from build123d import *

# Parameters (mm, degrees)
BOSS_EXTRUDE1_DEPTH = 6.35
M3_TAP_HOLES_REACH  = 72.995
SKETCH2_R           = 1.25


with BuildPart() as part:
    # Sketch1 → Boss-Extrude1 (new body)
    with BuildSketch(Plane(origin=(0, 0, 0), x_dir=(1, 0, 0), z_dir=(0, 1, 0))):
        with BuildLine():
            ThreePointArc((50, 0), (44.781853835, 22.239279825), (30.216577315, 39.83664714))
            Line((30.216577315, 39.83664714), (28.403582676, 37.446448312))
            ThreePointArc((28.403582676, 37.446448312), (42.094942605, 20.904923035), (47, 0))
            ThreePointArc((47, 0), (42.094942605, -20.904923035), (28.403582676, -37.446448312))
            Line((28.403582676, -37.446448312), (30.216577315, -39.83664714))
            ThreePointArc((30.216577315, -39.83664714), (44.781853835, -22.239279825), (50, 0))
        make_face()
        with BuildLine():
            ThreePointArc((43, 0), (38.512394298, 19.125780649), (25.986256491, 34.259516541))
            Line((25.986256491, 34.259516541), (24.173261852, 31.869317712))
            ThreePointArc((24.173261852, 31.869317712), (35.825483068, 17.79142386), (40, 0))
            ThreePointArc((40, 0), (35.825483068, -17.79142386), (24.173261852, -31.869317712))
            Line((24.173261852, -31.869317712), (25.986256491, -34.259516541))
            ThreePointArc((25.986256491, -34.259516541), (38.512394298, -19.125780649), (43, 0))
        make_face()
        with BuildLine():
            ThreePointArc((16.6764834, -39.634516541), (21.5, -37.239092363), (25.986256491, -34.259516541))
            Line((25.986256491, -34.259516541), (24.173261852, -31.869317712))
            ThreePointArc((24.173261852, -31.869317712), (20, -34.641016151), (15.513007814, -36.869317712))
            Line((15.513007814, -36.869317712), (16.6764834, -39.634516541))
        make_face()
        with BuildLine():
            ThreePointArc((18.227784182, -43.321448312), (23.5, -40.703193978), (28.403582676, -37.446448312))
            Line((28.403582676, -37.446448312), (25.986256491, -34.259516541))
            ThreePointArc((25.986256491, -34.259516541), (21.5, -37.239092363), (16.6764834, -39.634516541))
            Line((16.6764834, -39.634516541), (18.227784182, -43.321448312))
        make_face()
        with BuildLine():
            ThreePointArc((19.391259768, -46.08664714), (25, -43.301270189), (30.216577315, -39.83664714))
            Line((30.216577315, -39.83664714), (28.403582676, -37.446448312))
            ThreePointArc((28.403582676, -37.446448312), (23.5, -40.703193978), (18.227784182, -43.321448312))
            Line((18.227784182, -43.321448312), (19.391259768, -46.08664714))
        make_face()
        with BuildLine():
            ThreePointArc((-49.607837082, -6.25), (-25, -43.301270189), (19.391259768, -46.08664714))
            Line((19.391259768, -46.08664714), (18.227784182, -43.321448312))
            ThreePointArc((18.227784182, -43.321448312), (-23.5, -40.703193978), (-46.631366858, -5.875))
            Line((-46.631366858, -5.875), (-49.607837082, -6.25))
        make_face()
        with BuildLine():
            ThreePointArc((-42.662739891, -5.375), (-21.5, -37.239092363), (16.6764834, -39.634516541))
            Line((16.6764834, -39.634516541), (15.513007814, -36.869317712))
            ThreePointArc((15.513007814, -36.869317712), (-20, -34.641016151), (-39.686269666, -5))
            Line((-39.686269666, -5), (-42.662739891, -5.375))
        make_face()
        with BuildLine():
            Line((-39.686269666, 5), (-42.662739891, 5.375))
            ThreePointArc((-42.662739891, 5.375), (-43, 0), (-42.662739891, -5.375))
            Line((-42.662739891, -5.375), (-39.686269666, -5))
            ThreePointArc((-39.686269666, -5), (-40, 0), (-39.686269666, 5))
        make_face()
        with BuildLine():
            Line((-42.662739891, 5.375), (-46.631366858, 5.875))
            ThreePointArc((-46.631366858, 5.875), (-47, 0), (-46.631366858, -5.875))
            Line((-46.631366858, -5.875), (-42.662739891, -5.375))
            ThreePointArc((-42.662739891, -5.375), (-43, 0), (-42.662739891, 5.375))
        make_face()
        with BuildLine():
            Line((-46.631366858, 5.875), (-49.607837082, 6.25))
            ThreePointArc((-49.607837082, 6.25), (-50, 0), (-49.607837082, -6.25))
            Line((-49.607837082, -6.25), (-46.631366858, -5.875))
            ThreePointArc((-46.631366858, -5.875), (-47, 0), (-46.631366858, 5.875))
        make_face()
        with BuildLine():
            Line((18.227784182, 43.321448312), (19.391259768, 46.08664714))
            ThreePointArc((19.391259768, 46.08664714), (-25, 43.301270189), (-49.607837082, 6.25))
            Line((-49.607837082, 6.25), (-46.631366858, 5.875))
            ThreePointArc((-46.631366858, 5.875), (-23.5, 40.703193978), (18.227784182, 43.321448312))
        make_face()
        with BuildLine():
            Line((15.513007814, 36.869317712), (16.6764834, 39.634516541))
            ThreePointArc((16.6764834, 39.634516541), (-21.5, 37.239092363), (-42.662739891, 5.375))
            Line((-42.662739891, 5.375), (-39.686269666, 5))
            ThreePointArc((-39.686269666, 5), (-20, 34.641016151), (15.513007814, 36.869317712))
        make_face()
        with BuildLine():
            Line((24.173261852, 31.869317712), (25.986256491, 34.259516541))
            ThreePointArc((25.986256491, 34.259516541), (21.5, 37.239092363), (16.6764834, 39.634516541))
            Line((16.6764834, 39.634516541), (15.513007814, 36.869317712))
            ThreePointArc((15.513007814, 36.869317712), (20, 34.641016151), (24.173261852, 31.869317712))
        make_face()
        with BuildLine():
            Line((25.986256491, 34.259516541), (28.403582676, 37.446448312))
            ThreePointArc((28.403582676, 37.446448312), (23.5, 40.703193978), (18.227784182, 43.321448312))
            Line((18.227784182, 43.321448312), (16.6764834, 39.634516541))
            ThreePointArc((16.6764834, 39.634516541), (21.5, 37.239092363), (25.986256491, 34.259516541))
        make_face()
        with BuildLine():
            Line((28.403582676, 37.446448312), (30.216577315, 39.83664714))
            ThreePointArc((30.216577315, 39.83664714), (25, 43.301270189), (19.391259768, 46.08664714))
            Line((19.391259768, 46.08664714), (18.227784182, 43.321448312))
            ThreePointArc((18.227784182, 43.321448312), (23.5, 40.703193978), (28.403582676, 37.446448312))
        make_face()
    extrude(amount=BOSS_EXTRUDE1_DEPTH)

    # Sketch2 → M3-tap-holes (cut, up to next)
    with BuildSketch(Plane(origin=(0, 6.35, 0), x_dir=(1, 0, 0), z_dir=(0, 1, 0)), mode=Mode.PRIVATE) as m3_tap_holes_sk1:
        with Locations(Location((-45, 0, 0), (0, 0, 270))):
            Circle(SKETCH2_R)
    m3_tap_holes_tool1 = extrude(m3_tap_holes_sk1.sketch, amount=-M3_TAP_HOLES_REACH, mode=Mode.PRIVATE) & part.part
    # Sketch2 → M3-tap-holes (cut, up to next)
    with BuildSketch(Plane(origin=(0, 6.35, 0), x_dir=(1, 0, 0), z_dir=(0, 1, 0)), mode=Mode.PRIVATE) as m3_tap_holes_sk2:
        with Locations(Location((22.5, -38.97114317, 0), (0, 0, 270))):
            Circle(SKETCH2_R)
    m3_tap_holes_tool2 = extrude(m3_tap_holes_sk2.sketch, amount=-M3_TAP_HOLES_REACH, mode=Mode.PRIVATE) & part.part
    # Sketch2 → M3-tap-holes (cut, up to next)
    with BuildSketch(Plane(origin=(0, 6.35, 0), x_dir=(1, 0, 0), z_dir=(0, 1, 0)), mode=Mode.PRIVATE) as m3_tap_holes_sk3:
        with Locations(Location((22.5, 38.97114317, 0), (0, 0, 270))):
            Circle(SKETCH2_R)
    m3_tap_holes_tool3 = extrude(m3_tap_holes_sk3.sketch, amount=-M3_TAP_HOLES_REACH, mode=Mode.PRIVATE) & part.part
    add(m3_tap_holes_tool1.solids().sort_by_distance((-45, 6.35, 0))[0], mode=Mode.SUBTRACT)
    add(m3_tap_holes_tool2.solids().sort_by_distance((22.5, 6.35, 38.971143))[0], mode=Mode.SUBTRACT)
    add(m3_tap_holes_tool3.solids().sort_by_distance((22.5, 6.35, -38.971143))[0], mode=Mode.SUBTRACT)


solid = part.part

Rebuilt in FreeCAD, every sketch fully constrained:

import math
import FreeCAD as App
import Part
import Sketcher
from FreeCAD import Vector

doc = App.newDocument("Part")
body = doc.addObject("PartDesign::Body", "Body")

sketch1 = doc.addObject("Sketcher::SketchObject", "Sketch")
body.addObject(sketch1)
sketch1.AttachmentSupport = (doc.XZ_Plane, [""])
sketch1.MapMode = "FlatFace"
sketch1.addGeometry([
    Part.ArcOfCircle(Part.Circle(Vector(0, 0, 0), Vector(0, 0, 1), 50), math.radians(-67.180756), math.radians(0)),
    Part.ArcOfCircle(Part.Circle(Vector(0, 0, 0), Vector(0, 0, 1), 50), math.radians(-172.819244), math.radians(-67.180756)),
    Part.ArcOfCircle(Part.Circle(Vector(0, 0, 0), Vector(0, 0, 1), 50), math.radians(172.819244), math.radians(187.180756)),
    Part.ArcOfCircle(Part.Circle(Vector(0, 0, 0), Vector(0, 0, 1), 50), math.radians(67.180756), math.radians(172.819244)),
    Part.ArcOfCircle(Part.Circle(Vector(0, 0, 0), Vector(0, 0, 1), 50), math.radians(0), math.radians(67.180756)),
    Part.ArcOfCircle(Part.Circle(Vector(0, 0, 0), Vector(0, 0, 1), 47), math.radians(67.180756), math.radians(172.819244)),
    Part.LineSegment(Vector(-46.631367, 5.875, 0), Vector(-42.66274, 5.375, 0)),
    Part.ArcOfCircle(Part.Circle(Vector(0, 0, 0), Vector(0, 0, 1), 43), math.radians(67.180756), math.radians(172.819244)),
    Part.LineSegment(Vector(16.676483, 39.634517, 0), Vector(18.227784, 43.321448, 0)),
    Part.ArcOfCircle(Part.Circle(Vector(0, 0, 0), Vector(0, 0, 1), 40), math.radians(-52.819244), math.radians(0)),
    Part.ArcOfCircle(Part.Circle(Vector(0, 0, 0), Vector(0, 0, 1), 40), math.radians(0), math.radians(52.819244)),
    Part.ArcOfCircle(Part.Circle(Vector(0, 0, 0), Vector(0, 0, 1), 40), math.radians(52.819244), math.radians(67.180756)),
    Part.ArcOfCircle(Part.Circle(Vector(0, 0, 0), Vector(0, 0, 1), 40), math.radians(67.180756), math.radians(172.819244)),
    Part.ArcOfCircle(Part.Circle(Vector(0, 0, 0), Vector(0, 0, 1), 40), math.radians(172.819244), math.radians(187.180756)),
    Part.ArcOfCircle(Part.Circle(Vector(0, 0, 0), Vector(0, 0, 1), 40), math.radians(-172.819244), math.radians(-67.180756)),
    Part.ArcOfCircle(Part.Circle(Vector(0, 0, 0), Vector(0, 0, 1), 40), math.radians(-67.180756), math.radians(-52.819244)),
    Part.ArcOfCircle(Part.Circle(Vector(0, 0, 0), Vector(0, 0, 1), 47), math.radians(-172.819244), math.radians(-67.180756)),
    Part.LineSegment(Vector(18.227784, -43.321448, 0), Vector(16.676483, -39.634517, 0)),
    Part.ArcOfCircle(Part.Circle(Vector(0, 0, 0), Vector(0, 0, 1), 43), math.radians(-172.819244), math.radians(-67.180756)),
    Part.LineSegment(Vector(-42.66274, -5.375, 0), Vector(-46.631367, -5.875, 0)),
    Part.LineSegment(Vector(25.986256, -34.259517, 0), Vector(28.403583, -37.446448, 0)),
    Part.ArcOfCircle(Part.Circle(Vector(0, 0, 0), Vector(0, 0, 1), 47), math.radians(-52.819244), math.radians(0)),
    Part.ArcOfCircle(Part.Circle(Vector(0, 0, 0), Vector(0, 0, 1), 47), math.radians(0), math.radians(52.819244)),
    Part.LineSegment(Vector(28.403583, 37.446448, 0), Vector(25.986256, 34.259517, 0)),
    Part.ArcOfCircle(Part.Circle(Vector(0, 0, 0), Vector(0, 0, 1), 43), math.radians(0), math.radians(52.819244)),
    Part.ArcOfCircle(Part.Circle(Vector(0, 0, 0), Vector(0, 0, 1), 43), math.radians(-52.819244), math.radians(0)),
], False)
sketch1.addConstraint([
    Sketcher.Constraint("Tangent", 0, 1, 1, 2),
    Sketcher.Constraint("Tangent", 1, 1, 2, 2),
    Sketcher.Constraint("Tangent", 2, 1, 3, 2),
    Sketcher.Constraint("Tangent", 3, 1, 4, 2),
    Sketcher.Constraint("Tangent", 4, 1, 0, 2),
    Sketcher.Constraint("Coincident", 5, 2, 6, 1),
    Sketcher.Constraint("Coincident", 6, 2, 7, 2),
    Sketcher.Constraint("Coincident", 7, 1, 8, 1),
    Sketcher.Constraint("Coincident", 8, 2, 5, 1),
    Sketcher.Constraint("Tangent", 9, 2, 10, 1),
    Sketcher.Constraint("Tangent", 10, 2, 11, 1),
    Sketcher.Constraint("Tangent", 11, 2, 12, 1),
    Sketcher.Constraint("Tangent", 12, 2, 13, 1),
    Sketcher.Constraint("Tangent", 13, 2, 14, 1),
    Sketcher.Constraint("Tangent", 14, 2, 15, 1),
    Sketcher.Constraint("Tangent", 15, 2, 9, 1),
    Sketcher.Constraint("Coincident", 16, 2, 17, 1),
    Sketcher.Constraint("Coincident", 17, 2, 18, 2),
    Sketcher.Constraint("Coincident", 18, 1, 19, 1),
    Sketcher.Constraint("Coincident", 19, 2, 16, 1),
    Sketcher.Constraint("Coincident", 20, 2, 21, 1),
    Sketcher.Constraint("Tangent", 21, 2, 22, 1),
    Sketcher.Constraint("Coincident", 22, 2, 23, 1),
    Sketcher.Constraint("Coincident", 23, 2, 24, 2),
    Sketcher.Constraint("Tangent", 24, 1, 25, 2),
    Sketcher.Constraint("Coincident", 25, 1, 20, 1),
    Sketcher.Constraint("Coincident", 0, 3, -1, 1),
    Sketcher.Constraint("Coincident", 2, 3, -1, 1),
    Sketcher.Constraint("Coincident", 5, 3, -1, 1),
    Sketcher.Constraint("Coincident", 7, 3, -1, 1),
    Sketcher.Constraint("Coincident", 9, 3, -1, 1),
    Sketcher.Constraint("Coincident", 11, 3, -1, 1),
    Sketcher.Constraint("Coincident", 13, 3, -1, 1),
    Sketcher.Constraint("Coincident", 16, 3, -1, 1),
    Sketcher.Constraint("Coincident", 18, 3, -1, 1),
    Sketcher.Constraint("Coincident", 21, 3, -1, 1),
    Sketcher.Constraint("Coincident", 24, 3, -1, 1),
    Sketcher.Constraint("Equal", 5, 16),
    Sketcher.Constraint("Equal", 7, 18),
    Sketcher.Constraint("Equal", 16, 21),
    Sketcher.Constraint("Equal", 21, 22),
    Sketcher.Constraint("Equal", 18, 24),
    Sketcher.Constraint("Equal", 24, 25),
    Sketcher.Constraint("PointOnObject", 4, 1, -1),
    Sketcher.Constraint("PointOnObject", 9, 2, -1),
    Sketcher.Constraint("PointOnObject", 21, 2, -1),
    Sketcher.Constraint("PointOnObject", 24, 1, -1),
    Sketcher.Constraint("Vertical", 1, 1, 2, 1),
    Sketcher.Constraint("Vertical", 0, 1, 3, 1),
    Sketcher.Constraint("Vertical", 12, 2, 13, 2),
    Sketcher.Constraint("Vertical", 11, 2, 14, 2),
    Sketcher.Constraint("Vertical", 10, 2, 15, 2),
    Sketcher.Constraint("Vertical", 8, 2, 16, 2),
    Sketcher.Constraint("Vertical", 7, 1, 17, 2),
    Sketcher.Constraint("Vertical", 6, 2, 18, 1),
    Sketcher.Constraint("Vertical", 5, 2, 19, 2),
    Sketcher.Constraint("Vertical", 20, 2, 22, 2),
    Sketcher.Constraint("Vertical", 23, 2, 25, 1),
    Sketcher.Constraint("Radius", 0, 50.0),
    Sketcher.Constraint("Radius", 5, 47.0),
    Sketcher.Constraint("Radius", 7, 43.0),
    Sketcher.Constraint("Radius", 9, 40.0),
    Sketcher.Constraint("DistanceY", -1, 1, 12, 2, 5.0),
    Sketcher.Constraint("DistanceY", 10, 2, 11, 2, 5.0),
    Sketcher.Constraint("DistanceY", 1, 1, 2, 1, 12.5),
    Sketcher.Constraint("DistanceY", 6, 2, 5, 2, 0.5),
    Sketcher.Constraint("DistanceY", 18, 1, 6, 2, 10.75),
    Sketcher.Constraint("DistanceY", 16, 2, 20, 2, 5.875),
    Sketcher.Constraint("DistanceY", 23, 2, 7, 1, 5.375),
    Sketcher.Constraint("DistanceY", 8, 2, 3, 1, 2.765199),
    Sketcher.Constraint("DistanceX", 7, 1, 8, 2, 1.551301),
    Sketcher.Constraint("DistanceY", 10, 2, 7, 1, 7.765199),
    Sketcher.Constraint("DistanceX", 16, 2, 20, 2, 10.175798),
])
pad1 = doc.addObject("PartDesign::Pad", "Pad")
body.addObject(pad1)
pad1.Profile = sketch1
pad1.Length = 6.35
pad1.Reversed = True

sketch2 = doc.addObject("Sketcher::SketchObject", "Sketch001")
body.addObject(sketch2)
sketch2.AttachmentSupport = (doc.XZ_Plane, [""])
sketch2.MapMode = "FlatFace"
sketch2.AttachmentOffset = App.Placement(Vector(0, 0, -6.35), App.Rotation())
sketch2.addGeometry(Part.Circle(Vector(-45, 0, 0), Vector(0, 0, 1), 1.25), False)
sketch2.addConstraint([
    Sketcher.Constraint("PointOnObject", 0, 3, -1),
    Sketcher.Constraint("Diameter", 0, 2.5),
    Sketcher.Constraint("DistanceX", 0, 3, -1, 1, 45.0),
])
pocket1 = doc.addObject("PartDesign::Pocket", "Pocket")
body.addObject(pocket1)
pocket1.Profile = sketch2
pocket1.Type = "UpToFirst"
pocket1.Reversed = True

sketch3 = doc.addObject("Sketcher::SketchObject", "Sketch002")
body.addObject(sketch3)
sketch3.AttachmentSupport = (doc.XZ_Plane, [""])
sketch3.MapMode = "FlatFace"
sketch3.AttachmentOffset = App.Placement(Vector(0, 0, -6.35), App.Rotation())
sketch3.addGeometry(Part.Circle(Vector(22.5, 38.971143, 0), Vector(0, 0, 1), 1.25), False)
sketch3.addConstraint([
    Sketcher.Constraint("Diameter", 0, 2.5),
    Sketcher.Constraint("DistanceX", -1, 1, 0, 3, 22.5),
    Sketcher.Constraint("DistanceY", -1, 1, 0, 3, 38.971143),
])
pocket2 = doc.addObject("PartDesign::Pocket", "Pocket001")
body.addObject(pocket2)
pocket2.Profile = sketch3
pocket2.Type = "UpToFirst"
pocket2.Reversed = True

sketch4 = doc.addObject("Sketcher::SketchObject", "Sketch003")
body.addObject(sketch4)
sketch4.AttachmentSupport = (doc.XZ_Plane, [""])
sketch4.MapMode = "FlatFace"
sketch4.AttachmentOffset = App.Placement(Vector(0, 0, -6.35), App.Rotation())
sketch4.addGeometry(Part.Circle(Vector(22.5, -38.971143, 0), Vector(0, 0, 1), 1.25), False)
sketch4.addConstraint([
    Sketcher.Constraint("Diameter", 0, 2.5),
    Sketcher.Constraint("DistanceX", -1, 1, 0, 3, 22.5),
    Sketcher.Constraint("DistanceY", 0, 3, -1, 1, 38.971143),
])
pocket3 = doc.addObject("PartDesign::Pocket", "Pocket002")
body.addObject(pocket3)
pocket3.Profile = sketch4
pocket3.Type = "UpToFirst"
pocket3.Reversed = True

doc.recompute()
